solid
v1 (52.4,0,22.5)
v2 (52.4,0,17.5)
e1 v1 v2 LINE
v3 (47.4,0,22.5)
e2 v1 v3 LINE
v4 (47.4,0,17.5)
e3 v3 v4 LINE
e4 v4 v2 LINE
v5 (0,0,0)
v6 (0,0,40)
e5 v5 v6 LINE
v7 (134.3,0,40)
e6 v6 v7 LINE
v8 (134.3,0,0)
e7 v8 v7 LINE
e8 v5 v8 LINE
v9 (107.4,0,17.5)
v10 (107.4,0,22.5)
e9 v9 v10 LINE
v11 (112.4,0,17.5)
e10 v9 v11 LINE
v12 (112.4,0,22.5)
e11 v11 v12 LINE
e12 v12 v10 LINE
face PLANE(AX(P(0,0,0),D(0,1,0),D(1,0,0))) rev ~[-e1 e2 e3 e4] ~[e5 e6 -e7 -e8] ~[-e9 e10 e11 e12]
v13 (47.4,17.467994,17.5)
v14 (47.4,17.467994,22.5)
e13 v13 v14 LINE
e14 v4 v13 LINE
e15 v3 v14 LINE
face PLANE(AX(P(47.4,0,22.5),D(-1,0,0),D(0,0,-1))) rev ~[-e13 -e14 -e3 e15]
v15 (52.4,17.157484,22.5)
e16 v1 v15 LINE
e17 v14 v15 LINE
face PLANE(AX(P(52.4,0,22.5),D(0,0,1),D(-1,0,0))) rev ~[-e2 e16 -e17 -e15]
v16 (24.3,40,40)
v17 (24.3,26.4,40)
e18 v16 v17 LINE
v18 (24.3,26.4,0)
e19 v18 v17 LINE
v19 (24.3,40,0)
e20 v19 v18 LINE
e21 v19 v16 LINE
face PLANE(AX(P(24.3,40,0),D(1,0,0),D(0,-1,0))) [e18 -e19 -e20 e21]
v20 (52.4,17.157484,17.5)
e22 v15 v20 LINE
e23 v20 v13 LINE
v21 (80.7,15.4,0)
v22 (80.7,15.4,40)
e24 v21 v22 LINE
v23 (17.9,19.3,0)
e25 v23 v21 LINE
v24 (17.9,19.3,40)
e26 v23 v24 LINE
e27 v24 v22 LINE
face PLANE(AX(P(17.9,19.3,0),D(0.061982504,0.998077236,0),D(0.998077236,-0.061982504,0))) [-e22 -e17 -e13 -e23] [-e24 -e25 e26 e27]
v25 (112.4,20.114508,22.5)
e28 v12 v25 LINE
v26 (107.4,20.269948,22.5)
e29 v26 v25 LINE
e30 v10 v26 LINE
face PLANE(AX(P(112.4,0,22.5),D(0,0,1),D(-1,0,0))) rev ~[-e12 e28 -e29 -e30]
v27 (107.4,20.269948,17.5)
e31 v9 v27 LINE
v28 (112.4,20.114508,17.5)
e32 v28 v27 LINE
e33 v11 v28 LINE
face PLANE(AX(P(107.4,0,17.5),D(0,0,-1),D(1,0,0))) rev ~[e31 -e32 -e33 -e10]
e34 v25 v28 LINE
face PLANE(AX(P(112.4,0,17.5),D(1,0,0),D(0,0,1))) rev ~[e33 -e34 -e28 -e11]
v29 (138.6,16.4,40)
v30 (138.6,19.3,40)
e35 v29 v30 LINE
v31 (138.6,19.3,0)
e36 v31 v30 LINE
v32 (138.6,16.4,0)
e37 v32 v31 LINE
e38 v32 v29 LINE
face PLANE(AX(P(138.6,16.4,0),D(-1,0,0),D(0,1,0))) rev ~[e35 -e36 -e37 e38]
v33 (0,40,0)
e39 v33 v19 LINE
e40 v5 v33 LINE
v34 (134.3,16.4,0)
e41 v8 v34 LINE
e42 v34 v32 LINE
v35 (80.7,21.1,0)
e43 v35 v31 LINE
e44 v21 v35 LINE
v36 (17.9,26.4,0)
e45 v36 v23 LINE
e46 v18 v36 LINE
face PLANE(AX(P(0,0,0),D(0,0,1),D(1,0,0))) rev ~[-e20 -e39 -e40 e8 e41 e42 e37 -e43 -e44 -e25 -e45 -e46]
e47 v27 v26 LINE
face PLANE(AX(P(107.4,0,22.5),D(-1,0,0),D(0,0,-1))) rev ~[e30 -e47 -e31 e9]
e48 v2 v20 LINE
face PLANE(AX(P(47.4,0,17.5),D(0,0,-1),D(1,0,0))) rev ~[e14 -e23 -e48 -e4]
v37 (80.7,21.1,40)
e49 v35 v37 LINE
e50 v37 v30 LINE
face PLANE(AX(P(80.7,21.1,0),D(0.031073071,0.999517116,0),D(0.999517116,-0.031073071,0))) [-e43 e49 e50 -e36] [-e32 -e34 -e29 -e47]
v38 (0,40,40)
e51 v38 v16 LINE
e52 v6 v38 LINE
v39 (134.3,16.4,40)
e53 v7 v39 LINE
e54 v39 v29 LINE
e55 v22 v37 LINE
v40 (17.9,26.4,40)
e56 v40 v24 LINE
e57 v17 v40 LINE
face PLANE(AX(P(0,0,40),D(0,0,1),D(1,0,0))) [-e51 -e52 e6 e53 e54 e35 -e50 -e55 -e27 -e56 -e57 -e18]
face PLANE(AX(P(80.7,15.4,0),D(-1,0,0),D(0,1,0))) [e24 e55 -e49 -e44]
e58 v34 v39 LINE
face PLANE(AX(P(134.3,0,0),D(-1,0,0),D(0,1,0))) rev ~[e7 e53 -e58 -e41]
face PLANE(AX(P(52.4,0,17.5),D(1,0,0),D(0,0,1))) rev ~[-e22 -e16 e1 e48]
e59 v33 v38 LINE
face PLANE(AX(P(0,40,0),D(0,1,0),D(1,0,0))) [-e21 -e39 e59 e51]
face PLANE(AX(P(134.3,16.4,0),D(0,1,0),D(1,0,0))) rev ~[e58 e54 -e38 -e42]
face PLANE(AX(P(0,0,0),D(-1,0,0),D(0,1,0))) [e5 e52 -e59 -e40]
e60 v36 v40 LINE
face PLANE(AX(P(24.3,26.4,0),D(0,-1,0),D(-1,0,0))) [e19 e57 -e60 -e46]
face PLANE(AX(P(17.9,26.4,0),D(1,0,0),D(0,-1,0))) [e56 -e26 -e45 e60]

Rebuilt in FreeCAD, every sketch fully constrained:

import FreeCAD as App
import Part
import Sketcher
Q = App.Units.Quantity


def add_polygon(sketch, points):
    """Adds a closed chain of lines whose ends are joined by coincident constraints."""
    first, n = sketch.GeometryCount, len(points)
    for a, b in zip(points, points[1:] + points[:1]):
        sketch.addGeometry(Part.LineSegment(App.Vector(*a, 0), App.Vector(*b, 0)), False)
    for i in range(n):
        sketch.addConstraint(Sketcher.Constraint("Coincident", first + i, 2, first + (i + 1) % n, 1))

doc = App.newDocument("Part")
body = doc.addObject("PartDesign::Body", "Body")

sketch1 = doc.addObject("Sketcher::SketchObject", "Sketch")
body.addObject(sketch1)
sketch1.AttachmentSupport = (doc.XY_Plane, [""])
sketch1.MapMode = "FlatFace"
add_polygon(sketch1, [(0, 40), (0, 0), (134.3, 0), (134.3, 16.4), (138.6, 16.4), (138.6, 19.3), (80.7, 21.1), (80.7, 15.4), (17.9, 19.3), (17.9, 26.4), (24.3, 26.4), (24.3, 40)])
sketch1.addConstraint(Sketcher.Constraint("Vertical", 0))
sketch1.addConstraint(Sketcher.Constraint("Horizontal", 1))
sketch1.addConstraint(Sketcher.Constraint("Vertical", 2))
sketch1.addConstraint(Sketcher.Constraint("Horizontal", 3))
sketch1.addConstraint(Sketcher.Constraint("Vertical", 4))
sketch1.addConstraint(Sketcher.Constraint("Vertical", 6))
sketch1.addConstraint(Sketcher.Constraint("Vertical", 8))
sketch1.addConstraint(Sketcher.Constraint("Horizontal", 9))
sketch1.addConstraint(Sketcher.Constraint("Vertical", 10))
sketch1.addConstraint(Sketcher.Constraint("Horizontal", 11))
sketch1.addConstraint(Sketcher.Constraint("Coincident", 0, 2, -1, 1))
sketch1.addConstraint(Sketcher.Constraint("Horizontal", 4, 2, 7, 2))
sketch1.addConstraint(Sketcher.Constraint("DistanceY", 0, 2, 0, 1, Q("40 mm")))
sketch1.addConstraint(Sketcher.Constraint("DistanceX", 1, 1, 1, 2, Q("134.3 mm")))
sketch1.addConstraint(Sketcher.Constraint("DistanceX", 3, 1, 3, 2, Q("4.3 mm")))
sketch1.addConstraint(Sketcher.Constraint("DistanceX", 9, 1, 9, 2, Q("6.4 mm")))
sketch1.addConstraint(Sketcher.Constraint("DistanceX", 11, 2, 11, 1, Q("24.3 mm")))
sketch1.addConstraint(Sketcher.Constraint("DistanceY", 2, 1, 2, 2, Q("16.4 mm")))
sketch1.addConstraint(Sketcher.Constraint("DistanceY", 6, 2, 6, 1, Q("5.7 mm")))
sketch1.addConstraint(Sketcher.Constraint("DistanceY", 8, 1, 8, 2, Q("7.1 mm")))
sketch1.addConstraint(Sketcher.Constraint("DistanceY", 10, 1, 10, 2, Q("13.6 mm")))
sketch1.addConstraint(Sketcher.Constraint("DistanceY", 4, 2, 5, 2, Q("1.8 mm")))
sketch1.addConstraint(Sketcher.Constraint("DistanceX", 7, 2, 5, 2, Q("62.8 mm")))
pad1 = doc.addObject("PartDesign::Pad", "Pad")
body.addObject(pad1)
pad1.Profile = sketch1
pad1.Length = 40

sketch2 = doc.addObject("Sketcher::SketchObject", "Sketch001")
body.addObject(sketch2)
sketch2.AttachmentSupport = (doc.XZ_Plane, [""])
sketch2.MapMode = "FlatFace"
add_polygon(sketch2, [(52, 18), (52, 22), (47, 22), (47, 18)])
add_polygon(sketch2, [(107, 22), (107, 18), (112, 18), (112, 22)])
sketch2.addConstraint(Sketcher.Constraint("Vertical", 0))
sketch2.addConstraint(Sketcher.Constraint("Horizontal", 1))
sketch2.addConstraint(Sketcher.Constraint("Vertical", 2))
sketch2.addConstraint(Sketcher.Constraint("Horizontal", 3))
sketch2.addConstraint(Sketcher.Constraint("Vertical", 4))
sketch2.addConstraint(Sketcher.Constraint("Horizontal", 5))
sketch2.addConstraint(Sketcher.Constraint("Vertical", 6))
sketch2.addConstraint(Sketcher.Constraint("Horizontal", 7))
sketch2.addConstraint(Sketcher.Constraint("Horizontal", 3, 2, 4, 2))
sketch2.addConstraint(Sketcher.Constraint("Horizontal", 1, 2, 6, 2))
sketch2.addConstraint(Sketcher.Constraint("Equal", 3, 5))
sketch2.addConstraint(Sketcher.Constraint("Equal", 7, 0))
sketch2.addConstraint(Sketcher.Constraint("DistanceX", 1, 2, 1, 1, Q("5 mm")))
sketch2.addConstraint(Sketcher.Constraint("DistanceX", 3, 2, 4, 2, Q("55 mm")))
sketch2.addConstraint(Sketcher.Constraint("DistanceX", -1, 1, 0, 2, Q("52.4 mm")))
sketch2.addConstraint(Sketcher.Constraint("DistanceY", -1, 1, 0, 2, Q("22.5 mm")))
pocket1 = doc.addObject("PartDesign::Pocket", "Pocket")
body.addObject(pocket1)
pocket1.Profile = sketch2
pocket1.Length = 40

doc.recompute()
